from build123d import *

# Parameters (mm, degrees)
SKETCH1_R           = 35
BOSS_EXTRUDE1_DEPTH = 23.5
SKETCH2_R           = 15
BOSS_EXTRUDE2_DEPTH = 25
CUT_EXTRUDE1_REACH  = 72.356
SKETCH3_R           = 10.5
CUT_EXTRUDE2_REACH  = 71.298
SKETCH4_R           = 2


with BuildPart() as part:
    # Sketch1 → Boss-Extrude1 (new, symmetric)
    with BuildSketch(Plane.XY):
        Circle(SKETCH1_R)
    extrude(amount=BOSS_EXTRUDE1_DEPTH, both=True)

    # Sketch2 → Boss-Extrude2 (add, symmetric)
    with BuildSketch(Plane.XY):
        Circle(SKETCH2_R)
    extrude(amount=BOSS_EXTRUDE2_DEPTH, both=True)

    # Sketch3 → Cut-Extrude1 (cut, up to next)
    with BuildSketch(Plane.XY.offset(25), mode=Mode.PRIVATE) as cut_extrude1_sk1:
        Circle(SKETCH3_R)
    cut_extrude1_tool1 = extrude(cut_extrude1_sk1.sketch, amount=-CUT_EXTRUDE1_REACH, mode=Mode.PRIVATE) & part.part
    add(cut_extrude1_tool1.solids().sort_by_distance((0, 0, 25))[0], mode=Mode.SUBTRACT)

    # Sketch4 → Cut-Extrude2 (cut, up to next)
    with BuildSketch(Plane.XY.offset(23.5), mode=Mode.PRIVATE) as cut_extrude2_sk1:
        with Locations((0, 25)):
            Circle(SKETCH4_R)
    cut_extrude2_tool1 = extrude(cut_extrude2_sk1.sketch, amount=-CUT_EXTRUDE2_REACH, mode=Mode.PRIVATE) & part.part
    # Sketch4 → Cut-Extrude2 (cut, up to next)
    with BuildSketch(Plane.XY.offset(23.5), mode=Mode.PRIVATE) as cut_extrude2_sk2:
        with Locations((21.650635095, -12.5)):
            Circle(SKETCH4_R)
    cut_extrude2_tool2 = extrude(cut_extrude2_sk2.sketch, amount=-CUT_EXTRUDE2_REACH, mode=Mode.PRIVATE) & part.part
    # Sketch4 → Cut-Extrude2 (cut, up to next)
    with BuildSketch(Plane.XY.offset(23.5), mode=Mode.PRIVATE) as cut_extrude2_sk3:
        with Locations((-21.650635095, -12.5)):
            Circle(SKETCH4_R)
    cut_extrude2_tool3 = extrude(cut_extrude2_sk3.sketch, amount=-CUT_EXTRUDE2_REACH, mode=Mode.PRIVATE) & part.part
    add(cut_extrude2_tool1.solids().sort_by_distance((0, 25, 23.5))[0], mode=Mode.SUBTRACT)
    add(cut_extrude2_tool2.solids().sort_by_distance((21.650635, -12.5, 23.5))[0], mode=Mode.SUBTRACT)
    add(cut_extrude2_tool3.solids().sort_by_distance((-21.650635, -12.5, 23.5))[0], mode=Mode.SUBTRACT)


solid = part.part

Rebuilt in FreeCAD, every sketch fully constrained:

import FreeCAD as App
import Part
import Sketcher

doc = App.newDocument("Part")
body = doc.addObject("PartDesign::Body", "Body")

sketch1 = body.newObject("Sketcher::SketchObject", "Sketch")
sketch1.AttachmentSupport = (doc.getObject("XY_Plane"), [""])
sketch1.MapMode = "FlatFace"
sketch1.addGeometry(Part.Circle(App.Vector(0, 0, 0), App.Vector(0, 0, 1), 35), False)
sketch1.addConstraint([
    Sketcher.Constraint("Coincident", 0, 3, -1, 1),
    Sketcher.Constraint("Diameter", 0, 70.0),
])
pad1 = body.newObject("PartDesign::Pad", "Pad")
pad1.Profile = sketch1
pad1.Length = 47
pad1.Midplane = True

sketch2 = body.newObject("Sketcher::SketchObject", "Sketch001")
sketch2.AttachmentSupport = (doc.getObject("XY_Plane"), [""])
sketch2.MapMode = "FlatFace"
sketch2.addGeometry(Part.Circle(App.Vector(0, 0, 0), App.Vector(0, 0, 1), 15), False)
sketch2.addConstraint([
    Sketcher.Constraint("Coincident", 0, 3, -1, 1),
    Sketcher.Constraint("Diameter", 0, 30.0),
])
pad2 = body.newObject("PartDesign::Pad", "Pad001")
pad2.Profile = sketch2
pad2.Length = 50
pad2.Midplane = True

sketch3 = body.newObject("Sketcher::SketchObject", "Sketch002")
sketch3.AttachmentSupport = (doc.getObject("XY_Plane"), [""])
sketch3.MapMode = "FlatFace"
sketch3.AttachmentOffset = App.Placement(App.Vector(0, 0, 25), App.Rotation())
sketch3.addGeometry(Part.Circle(App.Vector(0, 0, 0), App.Vector(0, 0, 1), 10), False)
sketch3.addConstraint([
    Sketcher.Constraint("Coincident", 0, 3, -1, 1),
    Sketcher.Constraint("Diameter", 0, 21.0),
])
pocket1 = body.newObject("PartDesign::Pocket", "Pocket")
pocket1.Profile = sketch3
pocket1.Type = "UpToFirst"

sketch4 = body.newObject("Sketcher::SketchObject", "Sketch003")
sketch4.AttachmentSupport = (doc.getObject("XY_Plane"), [""])
sketch4.MapMode = "FlatFace"
sketch4.AttachmentOffset = App.Placement(App.Vector(0, 0, 23.5), App.Rotation())
sketch4.addGeometry(Part.Circle(App.Vector(0, 25, 0), App.Vector(0, 0, 1), 2), False)
sketch4.addConstraint([
    Sketcher.Constraint("PointOnObject", 0, 3, -2),
    Sketcher.Constraint("Diameter", 0, 4.0),
    Sketcher.Constraint("DistanceY", -1, 1, 0, 3, 25.0),
])
pocket2 = body.newObject("PartDesign::Pocket", "Pocket001")
pocket2.Profile = sketch4
pocket2.Type = "UpToFirst"

sketch5 = body.newObject("Sketcher::SketchObject", "Sketch004")
sketch5.AttachmentSupport = (doc.getObject("XY_Plane"), [""])
sketch5.MapMode = "FlatFace"
sketch5.AttachmentOffset = App.Placement(App.Vector(0, 0, 23.5), App.Rotation())
sketch5.addGeometry(Part.Circle(App.Vector(21.7, -12.5, 0), App.Vector(0, 0, 1), 2), False)
sketch5.addConstraint([
    Sketcher.Constraint("Diameter", 0, 4.0),
    Sketcher.Constraint("DistanceY", 0, 3, -1, 1, 12.5),
    Sketcher.Constraint("DistanceX", -1, 1, 0, 3, 21.650635),
])
pocket3 = body.newObject("PartDesign::Pocket", "Pocket002")
pocket3.Profile = sketch5
pocket3.Type = "UpToFirst"

sketch6 = body.newObject("Sketcher::SketchObject", "Sketch005")
sketch6.AttachmentSupport = (doc.getObject("XY_Plane"), [""])
sketch6.MapMode = "FlatFace"
sketch6.AttachmentOffset = App.Placement(App.Vector(0, 0, 23.5), App.Rotation())
sketch6.addGeometry(Part.Circle(App.Vector(-21.7, -12.5, 0), App.Vector(0, 0, 1), 2), False)
sketch6.addConstraint([
    Sketcher.Constraint("Diameter", 0, 4.0),
    Sketcher.Constraint("DistanceY", 0, 3, -1, 1, 12.5),
    Sketcher.Constraint("DistanceX", 0, 3, -1, 1, 21.650635),
])
pocket4 = body.newObject("PartDesign::Pocket", "Pocket003")
pocket4.Profile = sketch6
pocket4.Type = "UpToFirst"

doc.recompute()
